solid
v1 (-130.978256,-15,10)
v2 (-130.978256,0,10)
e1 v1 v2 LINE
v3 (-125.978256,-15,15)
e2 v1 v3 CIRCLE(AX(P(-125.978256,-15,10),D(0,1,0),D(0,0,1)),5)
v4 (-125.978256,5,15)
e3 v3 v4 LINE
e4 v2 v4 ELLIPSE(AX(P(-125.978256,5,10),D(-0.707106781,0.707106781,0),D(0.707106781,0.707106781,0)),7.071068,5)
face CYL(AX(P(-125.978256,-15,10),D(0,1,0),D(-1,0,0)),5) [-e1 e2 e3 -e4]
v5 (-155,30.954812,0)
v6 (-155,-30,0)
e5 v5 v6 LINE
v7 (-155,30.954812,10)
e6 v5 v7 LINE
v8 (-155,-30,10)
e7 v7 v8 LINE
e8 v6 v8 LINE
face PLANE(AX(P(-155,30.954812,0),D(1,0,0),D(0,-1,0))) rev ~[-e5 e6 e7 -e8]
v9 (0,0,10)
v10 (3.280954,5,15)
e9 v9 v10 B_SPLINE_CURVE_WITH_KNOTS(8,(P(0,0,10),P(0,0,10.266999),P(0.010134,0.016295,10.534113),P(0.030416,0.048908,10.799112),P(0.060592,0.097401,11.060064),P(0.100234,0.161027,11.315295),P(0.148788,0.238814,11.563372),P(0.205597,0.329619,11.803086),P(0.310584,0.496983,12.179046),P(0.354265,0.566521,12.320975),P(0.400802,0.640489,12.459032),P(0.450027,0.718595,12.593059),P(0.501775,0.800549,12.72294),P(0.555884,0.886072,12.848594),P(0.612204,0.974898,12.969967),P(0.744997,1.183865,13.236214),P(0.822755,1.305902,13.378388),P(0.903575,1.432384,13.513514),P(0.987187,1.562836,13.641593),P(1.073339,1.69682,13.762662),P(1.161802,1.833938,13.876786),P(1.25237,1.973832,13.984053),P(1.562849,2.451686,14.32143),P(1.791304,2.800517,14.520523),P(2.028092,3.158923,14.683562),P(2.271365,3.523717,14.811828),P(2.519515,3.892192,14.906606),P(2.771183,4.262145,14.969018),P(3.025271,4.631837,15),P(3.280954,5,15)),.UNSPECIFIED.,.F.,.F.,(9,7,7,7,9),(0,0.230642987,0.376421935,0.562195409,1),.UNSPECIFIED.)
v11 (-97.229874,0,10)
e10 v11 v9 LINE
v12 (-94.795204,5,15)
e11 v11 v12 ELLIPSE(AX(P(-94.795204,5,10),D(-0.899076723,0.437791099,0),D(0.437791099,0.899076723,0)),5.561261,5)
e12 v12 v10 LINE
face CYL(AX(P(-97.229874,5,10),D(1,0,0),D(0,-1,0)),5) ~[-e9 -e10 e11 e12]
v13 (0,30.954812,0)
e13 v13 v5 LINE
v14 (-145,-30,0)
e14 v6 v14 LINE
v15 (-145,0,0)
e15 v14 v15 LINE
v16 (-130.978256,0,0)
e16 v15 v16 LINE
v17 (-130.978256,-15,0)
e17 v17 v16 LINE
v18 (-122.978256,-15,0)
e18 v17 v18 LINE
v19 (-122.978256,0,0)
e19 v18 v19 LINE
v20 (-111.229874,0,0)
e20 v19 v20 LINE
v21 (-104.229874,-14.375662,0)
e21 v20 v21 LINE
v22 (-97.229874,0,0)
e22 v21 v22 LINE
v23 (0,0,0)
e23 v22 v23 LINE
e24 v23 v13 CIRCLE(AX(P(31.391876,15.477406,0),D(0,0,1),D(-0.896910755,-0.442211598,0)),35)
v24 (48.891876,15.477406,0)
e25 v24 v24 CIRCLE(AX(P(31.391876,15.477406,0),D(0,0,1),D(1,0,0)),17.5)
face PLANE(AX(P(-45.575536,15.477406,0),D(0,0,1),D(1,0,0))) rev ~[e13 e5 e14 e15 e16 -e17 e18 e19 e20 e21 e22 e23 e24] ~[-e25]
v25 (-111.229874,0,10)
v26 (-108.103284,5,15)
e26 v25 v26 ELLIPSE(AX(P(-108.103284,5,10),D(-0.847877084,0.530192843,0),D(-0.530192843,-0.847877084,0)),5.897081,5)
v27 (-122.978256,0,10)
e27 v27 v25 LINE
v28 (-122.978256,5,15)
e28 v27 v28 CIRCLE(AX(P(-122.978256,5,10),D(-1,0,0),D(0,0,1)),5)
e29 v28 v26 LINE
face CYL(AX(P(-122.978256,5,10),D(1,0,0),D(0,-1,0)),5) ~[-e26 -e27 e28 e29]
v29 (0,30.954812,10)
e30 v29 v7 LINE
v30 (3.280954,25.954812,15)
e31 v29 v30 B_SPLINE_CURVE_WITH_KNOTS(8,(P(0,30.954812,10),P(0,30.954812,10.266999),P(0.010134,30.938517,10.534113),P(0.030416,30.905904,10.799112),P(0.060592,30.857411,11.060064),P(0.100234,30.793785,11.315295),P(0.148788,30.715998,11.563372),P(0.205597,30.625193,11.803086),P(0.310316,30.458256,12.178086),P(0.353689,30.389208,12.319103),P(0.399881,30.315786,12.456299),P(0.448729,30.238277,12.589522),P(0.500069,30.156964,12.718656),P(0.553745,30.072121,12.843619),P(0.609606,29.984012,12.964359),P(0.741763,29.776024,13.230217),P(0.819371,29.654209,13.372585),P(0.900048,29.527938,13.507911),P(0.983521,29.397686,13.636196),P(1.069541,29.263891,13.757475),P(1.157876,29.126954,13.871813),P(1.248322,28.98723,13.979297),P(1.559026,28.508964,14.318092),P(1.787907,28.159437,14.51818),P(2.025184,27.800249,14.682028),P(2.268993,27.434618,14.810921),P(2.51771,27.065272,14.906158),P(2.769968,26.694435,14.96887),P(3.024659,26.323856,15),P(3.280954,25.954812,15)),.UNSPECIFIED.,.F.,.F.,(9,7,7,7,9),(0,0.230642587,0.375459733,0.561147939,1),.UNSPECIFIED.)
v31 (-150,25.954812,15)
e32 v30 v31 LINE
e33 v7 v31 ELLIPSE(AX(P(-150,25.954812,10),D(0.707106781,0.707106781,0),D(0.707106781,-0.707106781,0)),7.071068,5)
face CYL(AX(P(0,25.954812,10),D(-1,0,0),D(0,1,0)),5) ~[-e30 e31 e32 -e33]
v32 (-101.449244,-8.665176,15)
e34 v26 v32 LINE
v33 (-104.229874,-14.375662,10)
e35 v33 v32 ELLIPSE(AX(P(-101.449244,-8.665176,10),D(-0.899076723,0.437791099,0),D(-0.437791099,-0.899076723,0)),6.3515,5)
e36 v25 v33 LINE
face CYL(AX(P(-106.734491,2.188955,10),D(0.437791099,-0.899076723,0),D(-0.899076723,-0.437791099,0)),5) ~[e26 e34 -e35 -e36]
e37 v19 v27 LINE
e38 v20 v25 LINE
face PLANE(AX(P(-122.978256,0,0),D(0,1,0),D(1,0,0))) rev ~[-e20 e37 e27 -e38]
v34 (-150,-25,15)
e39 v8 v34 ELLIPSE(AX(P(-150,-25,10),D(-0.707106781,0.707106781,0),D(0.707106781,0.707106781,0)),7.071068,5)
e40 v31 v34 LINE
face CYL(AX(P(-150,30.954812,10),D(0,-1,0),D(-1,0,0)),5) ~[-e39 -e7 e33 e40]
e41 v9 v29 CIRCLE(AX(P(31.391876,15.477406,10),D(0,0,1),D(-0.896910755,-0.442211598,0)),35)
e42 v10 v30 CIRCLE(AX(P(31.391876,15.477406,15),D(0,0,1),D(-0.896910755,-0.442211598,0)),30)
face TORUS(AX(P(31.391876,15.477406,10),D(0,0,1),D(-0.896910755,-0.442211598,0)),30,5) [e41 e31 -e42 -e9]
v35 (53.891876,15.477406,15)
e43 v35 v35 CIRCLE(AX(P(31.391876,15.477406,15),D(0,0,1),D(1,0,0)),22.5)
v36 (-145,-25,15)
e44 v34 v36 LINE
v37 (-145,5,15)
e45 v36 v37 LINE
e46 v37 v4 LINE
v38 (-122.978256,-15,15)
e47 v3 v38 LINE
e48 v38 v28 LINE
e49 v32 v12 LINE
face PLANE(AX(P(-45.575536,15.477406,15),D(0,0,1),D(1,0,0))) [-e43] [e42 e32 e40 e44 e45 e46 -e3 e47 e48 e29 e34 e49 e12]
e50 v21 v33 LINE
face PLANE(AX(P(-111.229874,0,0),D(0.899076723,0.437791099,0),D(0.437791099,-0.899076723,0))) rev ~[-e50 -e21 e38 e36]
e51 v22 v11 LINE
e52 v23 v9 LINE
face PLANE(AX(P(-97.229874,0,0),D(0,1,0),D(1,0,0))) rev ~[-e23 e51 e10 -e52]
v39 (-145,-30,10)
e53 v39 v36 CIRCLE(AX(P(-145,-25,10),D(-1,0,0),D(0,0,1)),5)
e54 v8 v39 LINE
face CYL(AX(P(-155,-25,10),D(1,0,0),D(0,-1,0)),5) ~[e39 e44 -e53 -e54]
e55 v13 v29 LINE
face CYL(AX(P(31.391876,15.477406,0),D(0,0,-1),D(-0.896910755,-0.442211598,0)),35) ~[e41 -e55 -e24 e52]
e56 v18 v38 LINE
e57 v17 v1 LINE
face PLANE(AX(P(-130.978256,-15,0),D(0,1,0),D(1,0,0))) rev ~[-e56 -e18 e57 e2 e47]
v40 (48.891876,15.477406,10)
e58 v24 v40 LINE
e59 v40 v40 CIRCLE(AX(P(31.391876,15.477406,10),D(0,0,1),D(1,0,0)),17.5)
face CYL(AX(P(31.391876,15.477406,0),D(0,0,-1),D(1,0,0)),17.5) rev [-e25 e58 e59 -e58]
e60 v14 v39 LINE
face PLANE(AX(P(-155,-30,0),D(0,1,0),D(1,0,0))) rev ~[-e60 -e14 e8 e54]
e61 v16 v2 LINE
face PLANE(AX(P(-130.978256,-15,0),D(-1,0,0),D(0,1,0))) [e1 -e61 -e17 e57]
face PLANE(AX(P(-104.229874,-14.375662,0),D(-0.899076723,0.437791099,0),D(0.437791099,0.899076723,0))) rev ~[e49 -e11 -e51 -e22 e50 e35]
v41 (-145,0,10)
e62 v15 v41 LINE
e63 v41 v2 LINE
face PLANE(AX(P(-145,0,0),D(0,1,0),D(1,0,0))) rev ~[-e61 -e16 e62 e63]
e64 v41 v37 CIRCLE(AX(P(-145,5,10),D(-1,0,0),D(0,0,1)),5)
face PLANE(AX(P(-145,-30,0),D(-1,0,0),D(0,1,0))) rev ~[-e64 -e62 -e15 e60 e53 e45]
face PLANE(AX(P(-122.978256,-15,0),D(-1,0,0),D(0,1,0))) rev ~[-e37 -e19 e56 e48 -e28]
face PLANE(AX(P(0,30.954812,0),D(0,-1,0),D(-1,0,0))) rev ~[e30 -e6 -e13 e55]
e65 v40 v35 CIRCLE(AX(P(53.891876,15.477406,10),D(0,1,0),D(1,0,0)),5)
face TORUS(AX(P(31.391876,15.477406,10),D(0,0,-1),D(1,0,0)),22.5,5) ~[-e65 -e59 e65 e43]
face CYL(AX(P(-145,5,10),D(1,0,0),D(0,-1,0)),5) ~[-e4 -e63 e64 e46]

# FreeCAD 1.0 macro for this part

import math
import FreeCAD as App
import Part
import Sketcher
from FreeCAD import Vector
Q = App.Units.Quantity


def edges_at(feature, points):
    """Names of the edges that pass closest to the given points."""
    edges = feature.Shape.Edges
    near = lambda p: min(range(len(edges)), key=lambda i: edges[i].distToShape(Part.Vertex(*p))[0])
    return sorted({f"Edge{near(p) + 1}" for p in points})

doc = App.newDocument("Part")
body = doc.addObject("PartDesign::Body", "Body")

# Sketch on XY plane
sketch1 = body.newObject("Sketcher::SketchObject", "Sketch")
sketch1.AttachmentSupport = (doc.getObject("XY_Plane"), [""])
sketch1.MapMode = "FlatFace"
sketch1.addGeometry([
    Part.LineSegment(Vector(0, 31, 0), Vector(-155, 31, 0)),  # 0
    Part.LineSegment(Vector(-155, 31, 0), Vector(-155, -30, 0)),  # 1
    Part.LineSegment(Vector(-155, -30, 0), Vector(-145, -30, 0)),  # 2
    Part.LineSegment(Vector(-145, -30, 0), Vector(-145, 0, 0)),  # 3
    Part.LineSegment(Vector(-145, 0, 0), Vector(-131, 0, 0)),  # 4
    Part.LineSegment(Vector(-131, 0, 0), Vector(-131, -15, 0)),  # 5
    Part.LineSegment(Vector(-131, -15, 0), Vector(-123, -15, 0)),  # 6
    Part.LineSegment(Vector(-123, -15, 0), Vector(-123, 0, 0)),  # 7
    Part.LineSegment(Vector(-123, 0, 0), Vector(-111, 0, 0)),  # 8
    Part.LineSegment(Vector(-111, 0, 0), Vector(-104, -14, 0)),  # 9
    Part.LineSegment(Vector(-104, -14, 0), Vector(-97, 0, 0)),  # 10
    Part.LineSegment(Vector(-97, 0, 0), Vector(0, 0, 0)),  # 11
    Part.ArcOfCircle(Part.Circle(Vector(31, 15, 0), Vector(0, 0, 1), 35), math.radians(-154), math.radians(154)),  # 12
    Part.Circle(Vector(31, 15, 0), Vector(0, 0, 1), 18),  # 13
], False)
sketch1.addConstraint([
    Sketcher.Constraint("Coincident", 0, 2, 1, 1),
    Sketcher.Constraint("Coincident", 1, 2, 2, 1),
    Sketcher.Constraint("Coincident", 2, 2, 3, 1),
    Sketcher.Constraint("Coincident", 3, 2, 4, 1),
    Sketcher.Constraint("Coincident", 4, 2, 5, 1),
    Sketcher.Constraint("Coincident", 5, 2, 6, 1),
    Sketcher.Constraint("Coincident", 6, 2, 7, 1),
    Sketcher.Constraint("Coincident", 7, 2, 8, 1),
    Sketcher.Constraint("Coincident", 8, 2, 9, 1),
    Sketcher.Constraint("Coincident", 9, 2, 10, 1),
    Sketcher.Constraint("Coincident", 10, 2, 11, 1),
    Sketcher.Constraint("Coincident", 11, 2, 12, 1),
    Sketcher.Constraint("Coincident", 12, 2, 0, 1),
    Sketcher.Constraint("Horizontal", 0),
    Sketcher.Constraint("Vertical", 1),
    Sketcher.Constraint("Horizontal", 2),
    Sketcher.Constraint("Vertical", 3),
    Sketcher.Constraint("Horizontal", 4),
    Sketcher.Constraint("Vertical", 5),
    Sketcher.Constraint("Horizontal", 6),
    Sketcher.Constraint("Vertical", 7),
    Sketcher.Constraint("Horizontal", 8),
    Sketcher.Constraint("Horizontal", 11),
    Sketcher.Constraint("Coincident", 11, 2, -1, 1),
    Sketcher.Constraint("Coincident", 13, 3, 12, 3),
    Sketcher.Constraint("PointOnObject", 3, 2, -1),
    Sketcher.Constraint("PointOnObject", 7, 2, -1),
    Sketcher.Constraint("PointOnObject", 12, 2, -2),
    Sketcher.Constraint("Equal", 9, 10),
    Sketcher.Constraint("Diameter", 13, Q("35 mm")),
    Sketcher.Constraint("Radius", 12, Q("35 mm")),
    Sketcher.Constraint("DistanceX", 0, 2, 0, 1, Q("155 mm")),
    Sketcher.Constraint("DistanceX", 2, 1, 2, 2, Q("10 mm")),
    Sketcher.Constraint("DistanceX", 6, 1, 6, 2, Q("8 mm")),
    Sketcher.Constraint("DistanceY", 3, 1, 3, 2, Q("30 mm")),
    Sketcher.Constraint("DistanceY", 5, 2, 5, 1, Q("15 mm")),
    Sketcher.Constraint("DistanceX", 8, 2, 9, 2, Q("7 mm")),
    Sketcher.Constraint("DistanceY", 1, 2, 1, 1, Q("60.954812 mm")),
    Sketcher.Constraint("Distance", 9, Q("15.989361 mm")),
    Sketcher.Constraint("DistanceX", 4, 1, 4, 2, Q("14.021744 mm")),
    Sketcher.Constraint("DistanceX", 8, 1, 8, 2, Q("11.748382 mm")),
])
pad1 = body.newObject("PartDesign::Pad", "Pad")
pad1.Profile = sketch1
pad1.Length = 15
doc.recompute()

fillet = body.newObject("PartDesign::Fillet", "Fillet")
fillet.Base = (pad1, edges_at(pad1, [
    (-150, -30, 15),
    (-155, 0.477, 15),
    (-137.989, 0, 15),
    (-130.978, -7.5, 15),
    (-107.73, -7.188, 15),
    (-117.104, 0, 15),
    (-48.615, 0, 15),
    (-77.5, 30.955, 15),
    (66.392, 15.477, 15),
    (13.892, 15.477, 15),
]))
fillet.Radius = 5

doc.recompute()
